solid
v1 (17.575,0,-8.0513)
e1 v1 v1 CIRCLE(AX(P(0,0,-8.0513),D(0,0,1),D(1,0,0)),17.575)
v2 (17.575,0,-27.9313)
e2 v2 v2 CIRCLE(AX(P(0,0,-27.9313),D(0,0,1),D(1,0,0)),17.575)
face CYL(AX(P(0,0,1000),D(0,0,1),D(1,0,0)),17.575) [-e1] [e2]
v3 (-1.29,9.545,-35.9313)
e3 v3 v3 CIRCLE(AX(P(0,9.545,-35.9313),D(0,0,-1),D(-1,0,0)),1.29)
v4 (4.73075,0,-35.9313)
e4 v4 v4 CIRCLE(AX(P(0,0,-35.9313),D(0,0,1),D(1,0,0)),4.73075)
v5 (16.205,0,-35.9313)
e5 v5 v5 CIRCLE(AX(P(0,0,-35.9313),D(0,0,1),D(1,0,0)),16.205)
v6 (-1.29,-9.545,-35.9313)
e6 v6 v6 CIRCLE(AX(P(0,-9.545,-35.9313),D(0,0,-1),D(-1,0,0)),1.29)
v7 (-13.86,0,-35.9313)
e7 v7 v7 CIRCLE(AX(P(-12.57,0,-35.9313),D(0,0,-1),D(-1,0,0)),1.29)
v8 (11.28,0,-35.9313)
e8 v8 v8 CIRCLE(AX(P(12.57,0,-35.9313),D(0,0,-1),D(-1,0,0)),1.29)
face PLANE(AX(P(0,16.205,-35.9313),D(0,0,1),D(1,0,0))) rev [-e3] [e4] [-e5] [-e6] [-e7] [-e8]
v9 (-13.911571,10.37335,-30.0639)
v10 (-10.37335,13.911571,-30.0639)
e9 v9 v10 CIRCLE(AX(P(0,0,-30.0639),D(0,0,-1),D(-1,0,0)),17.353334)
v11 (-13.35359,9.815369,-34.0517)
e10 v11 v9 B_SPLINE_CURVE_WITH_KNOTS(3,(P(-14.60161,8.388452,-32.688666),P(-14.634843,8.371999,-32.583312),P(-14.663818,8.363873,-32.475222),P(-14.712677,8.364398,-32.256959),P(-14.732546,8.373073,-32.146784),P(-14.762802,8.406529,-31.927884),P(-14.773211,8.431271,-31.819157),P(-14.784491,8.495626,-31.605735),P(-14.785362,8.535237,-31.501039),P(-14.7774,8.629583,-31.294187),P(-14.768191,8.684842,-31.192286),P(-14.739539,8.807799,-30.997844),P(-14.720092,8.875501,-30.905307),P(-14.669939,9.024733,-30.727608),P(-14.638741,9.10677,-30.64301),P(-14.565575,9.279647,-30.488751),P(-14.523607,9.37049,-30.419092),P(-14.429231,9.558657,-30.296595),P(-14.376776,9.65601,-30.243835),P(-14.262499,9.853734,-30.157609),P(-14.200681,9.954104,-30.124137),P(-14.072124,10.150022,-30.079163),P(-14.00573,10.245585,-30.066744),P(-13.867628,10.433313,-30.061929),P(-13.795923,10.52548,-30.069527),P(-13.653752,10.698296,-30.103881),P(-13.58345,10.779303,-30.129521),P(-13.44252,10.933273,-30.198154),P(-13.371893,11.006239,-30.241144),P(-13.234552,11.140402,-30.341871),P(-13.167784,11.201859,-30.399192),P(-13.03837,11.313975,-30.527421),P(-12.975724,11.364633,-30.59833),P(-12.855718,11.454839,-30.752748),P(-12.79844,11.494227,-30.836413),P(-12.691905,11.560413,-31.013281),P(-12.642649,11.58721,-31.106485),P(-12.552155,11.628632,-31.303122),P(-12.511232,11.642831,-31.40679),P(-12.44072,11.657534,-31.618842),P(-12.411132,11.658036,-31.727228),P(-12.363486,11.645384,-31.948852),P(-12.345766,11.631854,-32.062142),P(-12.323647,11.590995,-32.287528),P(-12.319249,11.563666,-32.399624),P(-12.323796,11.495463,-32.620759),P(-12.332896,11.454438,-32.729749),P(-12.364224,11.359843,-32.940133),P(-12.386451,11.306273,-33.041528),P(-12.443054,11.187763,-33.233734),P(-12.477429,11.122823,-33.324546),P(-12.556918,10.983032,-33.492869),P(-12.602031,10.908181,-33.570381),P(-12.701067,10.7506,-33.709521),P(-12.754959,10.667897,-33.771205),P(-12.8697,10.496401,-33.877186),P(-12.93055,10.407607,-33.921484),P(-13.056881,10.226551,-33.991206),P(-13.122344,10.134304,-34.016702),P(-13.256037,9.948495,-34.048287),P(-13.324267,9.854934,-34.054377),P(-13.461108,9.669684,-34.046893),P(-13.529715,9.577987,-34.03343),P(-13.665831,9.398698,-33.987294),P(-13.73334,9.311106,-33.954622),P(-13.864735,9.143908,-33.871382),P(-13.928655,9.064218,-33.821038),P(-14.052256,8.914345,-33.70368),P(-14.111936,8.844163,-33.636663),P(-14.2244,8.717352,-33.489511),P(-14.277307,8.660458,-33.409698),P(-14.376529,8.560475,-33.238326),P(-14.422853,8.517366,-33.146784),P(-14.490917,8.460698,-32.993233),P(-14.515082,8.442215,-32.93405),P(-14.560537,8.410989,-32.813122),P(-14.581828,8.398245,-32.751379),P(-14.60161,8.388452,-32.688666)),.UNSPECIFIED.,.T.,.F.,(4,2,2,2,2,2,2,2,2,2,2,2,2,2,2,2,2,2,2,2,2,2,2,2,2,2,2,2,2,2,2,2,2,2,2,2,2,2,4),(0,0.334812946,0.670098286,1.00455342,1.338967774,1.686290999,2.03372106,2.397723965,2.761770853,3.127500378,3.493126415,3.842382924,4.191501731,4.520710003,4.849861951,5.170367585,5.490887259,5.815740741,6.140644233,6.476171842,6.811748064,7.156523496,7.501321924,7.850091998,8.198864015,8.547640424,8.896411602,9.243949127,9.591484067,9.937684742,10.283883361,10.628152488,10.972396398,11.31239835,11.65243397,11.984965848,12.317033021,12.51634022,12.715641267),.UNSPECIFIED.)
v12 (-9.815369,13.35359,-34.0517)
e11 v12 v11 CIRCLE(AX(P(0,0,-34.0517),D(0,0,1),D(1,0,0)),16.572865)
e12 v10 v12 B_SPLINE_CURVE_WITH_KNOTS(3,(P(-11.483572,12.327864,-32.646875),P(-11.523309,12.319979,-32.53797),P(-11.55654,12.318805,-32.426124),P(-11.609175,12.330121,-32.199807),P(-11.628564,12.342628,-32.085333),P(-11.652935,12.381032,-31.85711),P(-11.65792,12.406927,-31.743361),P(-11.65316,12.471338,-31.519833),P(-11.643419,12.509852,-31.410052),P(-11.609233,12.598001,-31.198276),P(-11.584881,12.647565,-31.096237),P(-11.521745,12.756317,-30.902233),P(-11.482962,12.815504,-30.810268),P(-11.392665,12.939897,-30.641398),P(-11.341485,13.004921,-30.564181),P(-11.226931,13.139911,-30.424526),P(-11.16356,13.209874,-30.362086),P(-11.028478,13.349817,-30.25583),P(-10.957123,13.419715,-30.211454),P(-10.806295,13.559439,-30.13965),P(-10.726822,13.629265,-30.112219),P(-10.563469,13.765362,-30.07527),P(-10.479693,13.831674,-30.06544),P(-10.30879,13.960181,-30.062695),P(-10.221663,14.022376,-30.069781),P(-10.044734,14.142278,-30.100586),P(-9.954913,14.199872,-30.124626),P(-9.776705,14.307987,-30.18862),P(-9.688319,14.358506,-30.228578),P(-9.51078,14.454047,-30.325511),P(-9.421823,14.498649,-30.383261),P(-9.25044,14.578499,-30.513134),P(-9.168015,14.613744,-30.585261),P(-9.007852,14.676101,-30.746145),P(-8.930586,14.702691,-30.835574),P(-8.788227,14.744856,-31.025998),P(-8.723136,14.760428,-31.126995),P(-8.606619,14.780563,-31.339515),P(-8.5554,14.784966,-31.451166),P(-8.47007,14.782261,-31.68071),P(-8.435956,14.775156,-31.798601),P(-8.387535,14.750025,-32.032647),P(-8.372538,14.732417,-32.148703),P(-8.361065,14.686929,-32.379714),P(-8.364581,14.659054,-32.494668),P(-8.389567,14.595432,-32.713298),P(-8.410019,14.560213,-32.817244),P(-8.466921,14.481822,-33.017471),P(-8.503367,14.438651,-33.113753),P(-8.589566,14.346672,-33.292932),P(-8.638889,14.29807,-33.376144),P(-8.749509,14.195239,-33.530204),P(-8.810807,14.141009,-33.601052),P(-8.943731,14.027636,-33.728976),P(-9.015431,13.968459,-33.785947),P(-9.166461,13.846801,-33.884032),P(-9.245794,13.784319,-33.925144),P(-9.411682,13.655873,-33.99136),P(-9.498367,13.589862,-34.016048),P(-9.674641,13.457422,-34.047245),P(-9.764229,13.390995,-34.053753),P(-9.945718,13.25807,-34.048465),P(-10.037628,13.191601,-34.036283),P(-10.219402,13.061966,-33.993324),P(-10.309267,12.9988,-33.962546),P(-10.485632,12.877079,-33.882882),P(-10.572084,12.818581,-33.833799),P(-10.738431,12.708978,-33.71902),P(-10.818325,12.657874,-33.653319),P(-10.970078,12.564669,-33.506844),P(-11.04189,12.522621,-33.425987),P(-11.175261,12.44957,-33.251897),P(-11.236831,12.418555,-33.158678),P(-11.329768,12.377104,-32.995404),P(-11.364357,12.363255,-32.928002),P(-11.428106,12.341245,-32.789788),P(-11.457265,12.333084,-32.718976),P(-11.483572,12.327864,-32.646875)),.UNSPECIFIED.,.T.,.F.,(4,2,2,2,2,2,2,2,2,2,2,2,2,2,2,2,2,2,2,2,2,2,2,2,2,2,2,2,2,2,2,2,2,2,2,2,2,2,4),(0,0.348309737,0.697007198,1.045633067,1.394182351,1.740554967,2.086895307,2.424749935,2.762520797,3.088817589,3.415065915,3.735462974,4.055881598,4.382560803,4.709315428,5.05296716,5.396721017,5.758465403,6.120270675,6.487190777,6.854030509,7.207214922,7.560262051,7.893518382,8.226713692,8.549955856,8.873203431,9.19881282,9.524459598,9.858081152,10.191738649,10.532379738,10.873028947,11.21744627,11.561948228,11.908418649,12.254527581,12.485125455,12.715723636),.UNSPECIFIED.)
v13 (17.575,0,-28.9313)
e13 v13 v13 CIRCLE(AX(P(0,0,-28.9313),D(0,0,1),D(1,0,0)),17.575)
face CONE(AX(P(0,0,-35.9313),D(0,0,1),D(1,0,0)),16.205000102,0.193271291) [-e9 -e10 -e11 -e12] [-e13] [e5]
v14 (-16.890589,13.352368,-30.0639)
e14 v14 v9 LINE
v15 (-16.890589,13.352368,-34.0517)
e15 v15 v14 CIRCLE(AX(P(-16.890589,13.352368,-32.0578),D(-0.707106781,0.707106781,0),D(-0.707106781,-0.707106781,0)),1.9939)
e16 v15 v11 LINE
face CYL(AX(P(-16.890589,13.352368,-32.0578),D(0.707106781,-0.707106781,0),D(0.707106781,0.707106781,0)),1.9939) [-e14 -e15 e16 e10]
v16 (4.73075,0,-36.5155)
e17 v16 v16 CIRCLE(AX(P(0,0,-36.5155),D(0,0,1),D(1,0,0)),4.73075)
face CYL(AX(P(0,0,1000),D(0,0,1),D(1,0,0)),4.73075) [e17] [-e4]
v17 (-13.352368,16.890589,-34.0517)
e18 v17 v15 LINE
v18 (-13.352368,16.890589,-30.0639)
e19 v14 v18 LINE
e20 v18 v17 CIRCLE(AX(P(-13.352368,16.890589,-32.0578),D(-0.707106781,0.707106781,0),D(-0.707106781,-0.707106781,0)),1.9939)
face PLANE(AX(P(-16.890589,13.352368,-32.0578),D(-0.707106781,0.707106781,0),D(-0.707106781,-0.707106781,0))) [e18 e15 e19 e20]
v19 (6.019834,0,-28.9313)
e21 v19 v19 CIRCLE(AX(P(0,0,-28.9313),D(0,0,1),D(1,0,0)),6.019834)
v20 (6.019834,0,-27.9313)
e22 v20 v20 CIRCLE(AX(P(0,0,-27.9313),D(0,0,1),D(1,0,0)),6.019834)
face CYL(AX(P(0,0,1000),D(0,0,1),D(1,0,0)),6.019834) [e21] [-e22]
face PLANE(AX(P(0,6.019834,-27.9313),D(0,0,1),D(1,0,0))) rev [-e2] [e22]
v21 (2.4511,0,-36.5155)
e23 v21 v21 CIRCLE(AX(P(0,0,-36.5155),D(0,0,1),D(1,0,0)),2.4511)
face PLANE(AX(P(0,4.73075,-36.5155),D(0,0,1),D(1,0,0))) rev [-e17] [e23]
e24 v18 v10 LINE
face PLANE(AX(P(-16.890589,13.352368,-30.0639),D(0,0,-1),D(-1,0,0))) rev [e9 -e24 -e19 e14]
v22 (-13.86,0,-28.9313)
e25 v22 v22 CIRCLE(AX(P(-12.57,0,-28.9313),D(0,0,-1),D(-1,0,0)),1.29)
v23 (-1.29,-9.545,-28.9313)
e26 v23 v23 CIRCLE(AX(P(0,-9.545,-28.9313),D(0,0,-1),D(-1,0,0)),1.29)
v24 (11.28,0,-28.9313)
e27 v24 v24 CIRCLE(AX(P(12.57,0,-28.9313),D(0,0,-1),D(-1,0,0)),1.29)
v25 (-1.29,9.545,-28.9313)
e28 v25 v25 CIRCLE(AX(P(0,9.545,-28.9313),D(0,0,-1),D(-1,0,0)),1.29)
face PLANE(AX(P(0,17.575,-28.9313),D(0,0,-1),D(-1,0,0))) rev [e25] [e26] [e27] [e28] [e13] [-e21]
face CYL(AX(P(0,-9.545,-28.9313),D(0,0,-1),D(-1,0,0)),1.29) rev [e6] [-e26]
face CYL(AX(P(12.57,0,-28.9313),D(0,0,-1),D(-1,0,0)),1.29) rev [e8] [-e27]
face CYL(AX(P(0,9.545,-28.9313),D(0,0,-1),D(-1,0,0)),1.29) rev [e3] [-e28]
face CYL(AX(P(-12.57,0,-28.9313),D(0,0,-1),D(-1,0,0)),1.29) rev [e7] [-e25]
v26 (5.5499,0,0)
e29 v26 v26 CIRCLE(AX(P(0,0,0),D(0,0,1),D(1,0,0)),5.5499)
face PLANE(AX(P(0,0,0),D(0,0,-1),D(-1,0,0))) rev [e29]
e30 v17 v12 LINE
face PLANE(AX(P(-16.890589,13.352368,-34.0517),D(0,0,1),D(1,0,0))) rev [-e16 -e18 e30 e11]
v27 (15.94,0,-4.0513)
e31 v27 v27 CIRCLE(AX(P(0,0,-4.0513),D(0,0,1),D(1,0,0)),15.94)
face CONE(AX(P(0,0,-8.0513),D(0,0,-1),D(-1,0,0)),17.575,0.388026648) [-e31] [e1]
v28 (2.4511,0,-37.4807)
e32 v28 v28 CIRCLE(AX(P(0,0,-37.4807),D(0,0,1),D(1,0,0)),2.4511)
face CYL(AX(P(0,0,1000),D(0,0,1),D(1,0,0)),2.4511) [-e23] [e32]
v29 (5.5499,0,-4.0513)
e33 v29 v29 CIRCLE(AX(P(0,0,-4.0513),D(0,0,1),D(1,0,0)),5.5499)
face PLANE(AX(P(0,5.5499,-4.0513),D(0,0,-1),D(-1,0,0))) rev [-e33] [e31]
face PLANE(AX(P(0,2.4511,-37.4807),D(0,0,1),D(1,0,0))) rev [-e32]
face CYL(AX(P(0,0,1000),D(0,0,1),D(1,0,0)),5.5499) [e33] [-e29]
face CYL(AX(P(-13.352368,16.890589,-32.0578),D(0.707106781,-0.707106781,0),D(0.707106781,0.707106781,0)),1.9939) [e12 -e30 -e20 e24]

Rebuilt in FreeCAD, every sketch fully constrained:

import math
import FreeCAD as App
import Part
import Sketcher
Q = App.Units.Quantity


def add_polygon(sketch, points):
    """Adds a closed chain of lines whose ends are joined by coincident constraints."""
    first, n = sketch.GeometryCount, len(points)
    for a, b in zip(points, points[1:] + points[:1]):
        sketch.addGeometry(Part.LineSegment(App.Vector(*a, 0), App.Vector(*b, 0)), False)
    for i in range(n):
        sketch.addConstraint(Sketcher.Constraint("Coincident", first + i, 2, first + (i + 1) % n, 1))

doc = App.newDocument("Part")
body = doc.addObject("PartDesign::Body", "Body")

sketch1 = body.newObject("Sketcher::SketchObject", "Sketch")
sketch1.AttachmentSupport = (doc.getObject("YZ_Plane"), [""])
sketch1.MapMode = "FlatFace"
add_polygon(sketch1, [(5.5499, 0), (0, 0), (0, -37.4807), (2.4511, -37.4807), (2.4511, -36.5155), (4.73075, -36.5155), (4.73075, -35.9313), (16.205, -35.9313), (17.575, -28.9313), (6.019834, -28.9313), (6.019834, -27.9313), (17.575, -27.9313), (17.575, -8.0513), (15.94, -4.0513), (5.5499, -4.0513)])
sketch1.addConstraint([
    Sketcher.Constraint("Horizontal", 0),
    Sketcher.Constraint("Vertical", 1),
    Sketcher.Constraint("Horizontal", 2),
    Sketcher.Constraint("Vertical", 3),
    Sketcher.Constraint("Horizontal", 4),
    Sketcher.Constraint("Vertical", 5),
    Sketcher.Constraint("Horizontal", 6),
    Sketcher.Constraint("Horizontal", 8),
    Sketcher.Constraint("Vertical", 9),
    Sketcher.Constraint("Horizontal", 10),
    Sketcher.Constraint("Vertical", 11),
    Sketcher.Constraint("Horizontal", 13),
    Sketcher.Constraint("Vertical", 14),
    Sketcher.Constraint("Coincident", 0, 2, -1, 1),
    Sketcher.Constraint("Vertical", 7, 2, 10, 2),
    Sketcher.Constraint("DistanceY", 3, 1, 3, 2, Q("0.038 in")),
    Sketcher.Constraint("DistanceY", 5, 1, 5, 2, Q("0.023 in")),
    Sketcher.Constraint("DistanceX", 0, 2, 0, 1, Q("0.2185 in")),
    Sketcher.Constraint("DistanceX", 2, 1, 2, 2, Q("0.0965 in")),
    Sketcher.Constraint("DistanceY", 14, 1, 14, 2, Q("0.1595 in")),
    Sketcher.Constraint("DistanceX", 13, 2, 13, 1, Q("10.3901 mm")),
    Sketcher.Constraint("DistanceY", 1, 2, 1, 1, Q("37.4807 mm")),
    Sketcher.Constraint("DistanceY", 9, 1, 9, 2, Q("1 mm")),
    Sketcher.Constraint("DistanceY", 11, 1, 11, 2, Q("19.88 mm")),
    Sketcher.Constraint("DistanceX", 4, 1, 4, 2, Q("2.27965 mm")),
    Sketcher.Constraint("DistanceX", 6, 1, 6, 2, Q("11.47425 mm")),
    Sketcher.Constraint("DistanceX", -1, 1, 7, 2, Q("17.575 mm")),
    Sketcher.Constraint("DistanceY", 7, 2, -1, 1, Q("28.9313 mm")),
    Sketcher.Constraint("DistanceX", 8, 2, 8, 1, Q("11.555166 mm")),
])
revolution = body.newObject("PartDesign::Revolution", "Revolution")
revolution.Profile = sketch1
revolution.ReferenceAxis = (sketch1, ["V_Axis"])
revolution.Angle = 360

sketch2 = body.newObject("Sketcher::SketchObject", "Sketch001")
sketch2.AttachmentSupport = (doc.getObject("XY_Plane"), [""])
sketch2.MapMode = "FlatFace"
sketch2.AttachmentOffset = App.Placement(App.Vector(0, 0, -35.9313), App.Rotation())
sketch2.addGeometry([
    Part.Circle(App.Vector(12.57, 0, 0), App.Vector(0, 0, 1), 1.29),
    Part.Circle(App.Vector(0, 9.545, 0), App.Vector(0, 0, 1), 1.29),
    Part.Circle(App.Vector(-12.57, 0, 0), App.Vector(0, 0, 1), 1.29),
    Part.Circle(App.Vector(0, -9.545, 0), App.Vector(0, 0, 1), 1.29),
], False)
sketch2.addConstraint([
    Sketcher.Constraint("Equal", 0, 1),
    Sketcher.Constraint("Equal", 1, 2),
    Sketcher.Constraint("Equal", 2, 3),
    Sketcher.Constraint("Symmetric", 0, 3, 2, 3, -1, 1),
    Sketcher.Constraint("Symmetric", 1, 3, 3, 3, -1, 1),
    Sketcher.Constraint("PointOnObject", 0, 3, -1),
    Sketcher.Constraint("PointOnObject", 1, 3, -2),
    Sketcher.Constraint("Diameter", 0, Q("2.58 mm")),
    Sketcher.Constraint("DistanceX", -1, 1, 0, 3, Q("12.57 mm")),
    Sketcher.Constraint("DistanceY", -1, 1, 1, 3, Q("9.545 mm")),
])
pocket1 = body.newObject("PartDesign::Pocket", "Pocket")
pocket1.Profile = sketch2
pocket1.Length = 7
pocket1.Reversed = True

sketch3 = body.newObject("Sketcher::SketchObject", "Sketch002")
sketch3.Placement = App.Placement(App.Vector(-12.427402, 12.427402, 0), App.Rotation(App.Vector(0, 0, -1), App.Vector(-0.707106781, -0.707106781, 0), App.Vector(-0.707106781, 0.707106781, 0), "ZXY"))
sketch3.addGeometry([
    Part.LineSegment(App.Vector(34.0517, -2.5019, 0), App.Vector(34.0517, 2.5019, 0)),
    Part.ArcOfCircle(Part.Circle(App.Vector(32.0578, 2.5019, 0), App.Vector(0, 0, 1), 1.9939), math.radians(0), math.radians(180)),
    Part.LineSegment(App.Vector(30.0639, 2.5019, 0), App.Vector(30.0639, -2.5019, 0)),
    Part.ArcOfCircle(Part.Circle(App.Vector(32.0578, -2.5019, 0), App.Vector(0, 0, 1), 1.9939), math.radians(180), math.radians(360)),
], False)
sketch3.addConstraint([
    Sketcher.Constraint("Tangent", 0, 2, 1, 1),
    Sketcher.Constraint("Tangent", 1, 2, 2, 1),
    Sketcher.Constraint("Tangent", 2, 2, 3, 1),
    Sketcher.Constraint("Tangent", 3, 2, 0, 1),
    Sketcher.Constraint("Vertical", 0),
    Sketcher.Constraint("Vertical", 2),
    Sketcher.Constraint("Radius", 1, Q("0.0785 in")),
    Sketcher.Constraint("DistanceY", 0, 1, 0, 2, Q("0.197 in")),
    Sketcher.Constraint("DistanceY", -1, 1, 1, 3, Q("0.0985 in")),
    Sketcher.Constraint("DistanceX", -1, 1, 1, 3, Q("32.0578 mm")),
])
pad1 = body.newObject("PartDesign::Pad", "Pad")
pad1.Profile = sketch3
pad1.Length = Q("0.3 in")
pad1.Midplane = True

doc.recompute()
